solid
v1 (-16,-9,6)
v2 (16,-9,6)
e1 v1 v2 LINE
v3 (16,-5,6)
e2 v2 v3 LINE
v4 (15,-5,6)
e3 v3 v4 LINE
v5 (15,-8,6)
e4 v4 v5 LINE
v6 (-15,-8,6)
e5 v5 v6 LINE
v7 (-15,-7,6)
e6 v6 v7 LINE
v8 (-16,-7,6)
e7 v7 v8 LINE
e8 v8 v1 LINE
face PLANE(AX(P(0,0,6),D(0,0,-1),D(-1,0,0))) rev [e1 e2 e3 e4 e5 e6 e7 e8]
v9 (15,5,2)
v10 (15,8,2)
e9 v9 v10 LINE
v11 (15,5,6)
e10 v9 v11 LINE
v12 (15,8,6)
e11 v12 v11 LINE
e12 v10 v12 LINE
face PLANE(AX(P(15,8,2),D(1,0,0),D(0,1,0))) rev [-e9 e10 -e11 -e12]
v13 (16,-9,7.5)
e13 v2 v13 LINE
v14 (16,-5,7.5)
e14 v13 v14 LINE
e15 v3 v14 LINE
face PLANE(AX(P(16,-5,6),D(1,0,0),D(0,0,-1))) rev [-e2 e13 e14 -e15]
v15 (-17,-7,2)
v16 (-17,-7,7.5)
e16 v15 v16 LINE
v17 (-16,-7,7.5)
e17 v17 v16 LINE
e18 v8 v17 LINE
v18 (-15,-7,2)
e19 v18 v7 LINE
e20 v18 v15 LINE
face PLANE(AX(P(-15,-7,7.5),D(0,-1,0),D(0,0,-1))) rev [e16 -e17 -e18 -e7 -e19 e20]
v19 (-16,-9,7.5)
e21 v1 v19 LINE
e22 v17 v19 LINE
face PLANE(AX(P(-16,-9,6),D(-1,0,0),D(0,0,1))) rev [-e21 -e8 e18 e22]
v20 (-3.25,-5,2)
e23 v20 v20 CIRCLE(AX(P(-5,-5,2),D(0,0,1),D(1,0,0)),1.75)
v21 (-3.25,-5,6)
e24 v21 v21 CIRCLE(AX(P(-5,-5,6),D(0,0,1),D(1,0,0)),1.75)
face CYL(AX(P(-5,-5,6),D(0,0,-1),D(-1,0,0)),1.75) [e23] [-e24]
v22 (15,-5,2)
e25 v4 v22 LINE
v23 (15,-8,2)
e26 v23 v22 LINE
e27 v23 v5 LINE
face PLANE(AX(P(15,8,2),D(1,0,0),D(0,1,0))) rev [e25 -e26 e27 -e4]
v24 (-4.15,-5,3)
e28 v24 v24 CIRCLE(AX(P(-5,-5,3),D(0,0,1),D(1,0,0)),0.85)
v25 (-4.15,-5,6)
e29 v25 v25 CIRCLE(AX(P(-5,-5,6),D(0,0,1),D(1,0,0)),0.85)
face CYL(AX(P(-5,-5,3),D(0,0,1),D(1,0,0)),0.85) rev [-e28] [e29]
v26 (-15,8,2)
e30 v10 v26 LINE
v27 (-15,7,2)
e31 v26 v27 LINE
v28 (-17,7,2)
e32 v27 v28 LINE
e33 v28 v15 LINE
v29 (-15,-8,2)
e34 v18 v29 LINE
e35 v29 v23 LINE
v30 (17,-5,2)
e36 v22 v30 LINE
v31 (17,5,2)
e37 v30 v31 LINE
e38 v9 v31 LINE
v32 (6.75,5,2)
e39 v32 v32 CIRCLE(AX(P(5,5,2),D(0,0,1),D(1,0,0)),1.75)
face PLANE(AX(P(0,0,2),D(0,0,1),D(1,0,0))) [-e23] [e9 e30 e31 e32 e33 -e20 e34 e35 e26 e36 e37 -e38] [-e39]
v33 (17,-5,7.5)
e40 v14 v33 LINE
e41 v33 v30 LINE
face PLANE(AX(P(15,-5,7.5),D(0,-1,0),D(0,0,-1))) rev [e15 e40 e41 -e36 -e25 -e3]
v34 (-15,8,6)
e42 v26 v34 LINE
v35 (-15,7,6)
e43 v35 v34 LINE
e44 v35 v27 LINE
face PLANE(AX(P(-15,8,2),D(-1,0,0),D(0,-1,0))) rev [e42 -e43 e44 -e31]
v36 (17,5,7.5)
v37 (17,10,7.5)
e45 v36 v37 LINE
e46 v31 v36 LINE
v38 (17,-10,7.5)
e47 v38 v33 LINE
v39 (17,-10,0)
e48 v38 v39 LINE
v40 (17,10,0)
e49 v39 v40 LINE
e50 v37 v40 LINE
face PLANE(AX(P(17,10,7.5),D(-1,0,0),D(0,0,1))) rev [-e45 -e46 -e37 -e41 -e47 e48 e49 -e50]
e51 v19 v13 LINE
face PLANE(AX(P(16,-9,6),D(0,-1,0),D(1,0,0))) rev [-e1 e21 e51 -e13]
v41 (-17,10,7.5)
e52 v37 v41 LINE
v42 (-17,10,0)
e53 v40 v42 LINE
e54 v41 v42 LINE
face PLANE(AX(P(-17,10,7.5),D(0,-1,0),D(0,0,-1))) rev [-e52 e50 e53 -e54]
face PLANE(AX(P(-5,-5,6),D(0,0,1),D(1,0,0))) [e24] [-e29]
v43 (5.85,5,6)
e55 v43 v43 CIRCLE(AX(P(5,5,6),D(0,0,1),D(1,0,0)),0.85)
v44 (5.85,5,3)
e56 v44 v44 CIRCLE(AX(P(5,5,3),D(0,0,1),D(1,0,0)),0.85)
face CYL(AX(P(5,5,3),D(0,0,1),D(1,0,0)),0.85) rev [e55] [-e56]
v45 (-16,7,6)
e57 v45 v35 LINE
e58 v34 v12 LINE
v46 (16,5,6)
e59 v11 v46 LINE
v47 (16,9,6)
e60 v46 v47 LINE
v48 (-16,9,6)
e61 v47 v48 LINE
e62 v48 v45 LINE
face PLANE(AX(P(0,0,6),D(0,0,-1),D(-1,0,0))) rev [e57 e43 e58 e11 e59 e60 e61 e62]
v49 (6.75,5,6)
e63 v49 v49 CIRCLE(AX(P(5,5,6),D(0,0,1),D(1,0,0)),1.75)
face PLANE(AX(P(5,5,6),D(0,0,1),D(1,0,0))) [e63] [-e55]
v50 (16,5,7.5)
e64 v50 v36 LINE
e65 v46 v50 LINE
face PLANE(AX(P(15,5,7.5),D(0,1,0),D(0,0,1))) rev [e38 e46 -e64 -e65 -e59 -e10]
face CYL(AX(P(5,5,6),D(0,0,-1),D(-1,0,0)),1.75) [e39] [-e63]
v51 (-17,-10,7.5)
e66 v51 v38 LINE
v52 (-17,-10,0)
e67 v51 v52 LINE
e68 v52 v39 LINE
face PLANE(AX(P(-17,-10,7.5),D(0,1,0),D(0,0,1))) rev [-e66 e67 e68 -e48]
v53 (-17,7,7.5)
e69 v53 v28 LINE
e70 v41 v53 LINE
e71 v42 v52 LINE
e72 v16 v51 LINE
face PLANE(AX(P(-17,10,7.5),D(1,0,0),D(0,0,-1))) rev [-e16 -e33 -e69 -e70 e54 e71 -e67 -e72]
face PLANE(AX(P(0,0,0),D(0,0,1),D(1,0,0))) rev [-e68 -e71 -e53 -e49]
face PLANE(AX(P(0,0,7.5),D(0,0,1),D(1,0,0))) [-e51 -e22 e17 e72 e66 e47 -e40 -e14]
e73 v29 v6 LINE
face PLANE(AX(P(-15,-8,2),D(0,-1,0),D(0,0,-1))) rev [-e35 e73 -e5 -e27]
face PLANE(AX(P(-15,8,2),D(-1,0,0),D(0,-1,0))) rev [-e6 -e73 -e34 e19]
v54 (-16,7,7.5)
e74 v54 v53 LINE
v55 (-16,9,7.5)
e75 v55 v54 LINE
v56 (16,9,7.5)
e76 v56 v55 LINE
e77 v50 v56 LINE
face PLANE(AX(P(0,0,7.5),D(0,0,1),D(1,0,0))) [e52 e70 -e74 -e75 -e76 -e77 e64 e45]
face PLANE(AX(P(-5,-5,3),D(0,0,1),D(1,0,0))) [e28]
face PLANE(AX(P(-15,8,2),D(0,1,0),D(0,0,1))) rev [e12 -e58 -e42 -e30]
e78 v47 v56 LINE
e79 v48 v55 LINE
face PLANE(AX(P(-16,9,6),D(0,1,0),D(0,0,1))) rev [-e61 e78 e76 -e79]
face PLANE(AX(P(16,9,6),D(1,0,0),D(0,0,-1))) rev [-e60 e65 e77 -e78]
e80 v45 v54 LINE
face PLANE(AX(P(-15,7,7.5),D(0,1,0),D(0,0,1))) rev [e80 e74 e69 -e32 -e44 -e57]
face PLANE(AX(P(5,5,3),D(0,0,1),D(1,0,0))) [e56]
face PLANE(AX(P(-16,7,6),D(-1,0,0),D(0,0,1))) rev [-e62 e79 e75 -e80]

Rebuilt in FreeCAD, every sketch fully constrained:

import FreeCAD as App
import Part
import Sketcher
from FreeCAD import Vector


def add_polygon(sketch, points):
    """Adds a closed chain of lines whose ends are joined by coincident constraints."""
    first, n = sketch.GeometryCount, len(points)
    for a, b in zip(points, points[1:] + points[:1]):
        sketch.addGeometry(Part.LineSegment(App.Vector(*a, 0), App.Vector(*b, 0)), False)
    for i in range(n):
        sketch.addConstraint(Sketcher.Constraint("Coincident", first + i, 2, first + (i + 1) % n, 1))

doc = App.newDocument("Part")
params = doc.addObject("Spreadsheet::Sheet", "Params")
for row, (alias, value) in enumerate([
    ("sketch1_width", "34 mm"),
    ("sketch1_height", "20 mm"),
    ("pad1_length", "7.5 mm"),
    ("sketch2_width", "30 mm"),
    ("sketch2_height", "16 mm"),
    ("pocket1_length", "5.5 mm"),
    ("sketch3_width", "10 mm"),
    ("sketch3_height", "5.5 mm"),
    ("pocket2_length", "2 mm"),
    ("sketch4_width", "14 mm"),
    ("sketch4_height", "5.5 mm"),
    ("pocket3_length", "2 mm"),
    ("sketch5_width", "1 mm"),
    ("sketch5_width2", "30 mm"),
    ("sketch5_height", "2 mm"),
    ("sketch5_height2", "3 mm"),
    ("pocket4_length", "1.5 mm"),
    ("sketch6_diameter", "3.5 mm"),
    ("pad2_length", "4 mm"),
    ("sketch7_diameter", "1.7 mm"),
    ("pocket5_length", "3 mm"),
], start=1):
    params.set(f"A{row}", alias)
    params.set(f"B{row}", "=" + value)
    params.setAlias(f"B{row}", alias)

body = doc.addObject("PartDesign::Body", "Body")

# Sketch on XY plane
sketch1 = body.newObject("Sketcher::SketchObject", "Sketch")
sketch1.AttachmentSupport = (doc.getObject("XY_Plane"), [""])
sketch1.MapMode = "FlatFace"
add_polygon(sketch1, [(-17, 10), (-17, -10), (17, -10), (17, 10)])  # lines 0-3
sketch1.addConstraint(Sketcher.Constraint("Vertical", 0))
sketch1.addConstraint(Sketcher.Constraint("Horizontal", 1))
sketch1.addConstraint(Sketcher.Constraint("Vertical", 2))
sketch1.addConstraint(Sketcher.Constraint("Horizontal", 3))
sketch1.addConstraint(Sketcher.Constraint("Symmetric", 0, 2, 2, 2, -1, 1))
sketch1.addConstraint(Sketcher.Constraint("DistanceX", 1, 1, 1, 2, 34.0))
sketch1.addConstraint(Sketcher.Constraint("DistanceY", 0, 2, 0, 1, 20.0))
sketch1.setExpression("Constraints[9]", "Params.sketch1_width")
sketch1.setExpression("Constraints[10]", "Params.sketch1_height")
pad1 = body.newObject("PartDesign::Pad", "Pad")
pad1.Profile = sketch1
pad1.setExpression("Length", "Params.pad1_length")

# Sketch on XY plane
sketch2 = body.newObject("Sketcher::SketchObject", "Sketch001")
sketch2.AttachmentSupport = (doc.getObject("XY_Plane"), [""])
sketch2.MapMode = "FlatFace"
sketch2.AttachmentOffset = App.Placement(Vector(0, 0, 7.5), App.Rotation())
add_polygon(sketch2, [(-15, 8), (-15, -8), (15, -8), (15, 8)])  # lines 0-3
sketch2.addConstraint(Sketcher.Constraint("Vertical", 0))
sketch2.addConstraint(Sketcher.Constraint("Horizontal", 1))
sketch2.addConstraint(Sketcher.Constraint("Vertical", 2))
sketch2.addConstraint(Sketcher.Constraint("Horizontal", 3))
sketch2.addConstraint(Sketcher.Constraint("Symmetric", 0, 2, 2, 2, -1, 1))
sketch2.addConstraint(Sketcher.Constraint("DistanceX", 1, 1, 1, 2, 30.0))
sketch2.addConstraint(Sketcher.Constraint("DistanceY", 0, 2, 0, 1, 16.0))
sketch2.setExpression("Constraints[9]", "Params.sketch2_width")
sketch2.setExpression("Constraints[10]", "Params.sketch2_height")
pocket1 = body.newObject("PartDesign::Pocket", "Pocket")
pocket1.Profile = sketch2
pocket1.setExpression("Length", "Params.pocket1_length")

# Sketch on YZ plane
sketch3 = body.newObject("Sketcher::SketchObject", "Sketch002")
sketch3.AttachmentSupport = (doc.getObject("YZ_Plane"), [""])
sketch3.MapMode = "FlatFace"
sketch3.AttachmentOffset = App.Placement(Vector(0, 0, 17), App.Rotation())
add_polygon(sketch3, [(5, 8), (-5, 8), (-5, 2), (5, 2)])  # lines 0-3
sketch3.addConstraint(Sketcher.Constraint("Horizontal", 0))
sketch3.addConstraint(Sketcher.Constraint("Vertical", 1))
sketch3.addConstraint(Sketcher.Constraint("Horizontal", 2))
sketch3.addConstraint(Sketcher.Constraint("Vertical", 3))
sketch3.addConstraint(Sketcher.Constraint("DistanceX", 0, 2, 0, 1, 10.0))
sketch3.addConstraint(Sketcher.Constraint("DistanceY", 1, 2, 1, 1, 5.5))
sketch3.addConstraint(Sketcher.Constraint("DistanceX", 0, 2, -1, 1, 5.0))
sketch3.addConstraint(Sketcher.Constraint("DistanceY", -1, 1, 1, 2, 2.0))
sketch3.setExpression("Constraints[8]", "Params.sketch3_width")
sketch3.setExpression("Constraints[9]", "Params.sketch3_height")
pocket2 = body.newObject("PartDesign::Pocket", "Pocket001")
pocket2.Profile = sketch3
pocket2.setExpression("Length", "Params.pocket2_length")

# Sketch on YZ plane
sketch4 = body.newObject("Sketcher::SketchObject", "Sketch003")
sketch4.AttachmentSupport = (doc.getObject("YZ_Plane"), [""])
sketch4.MapMode = "FlatFace"
sketch4.AttachmentOffset = App.Placement(Vector(0, 0, -17), App.Rotation())
add_polygon(sketch4, [(7, 2), (-7, 2), (-7, 8), (7, 8)])  # lines 0-3
sketch4.addConstraint(Sketcher.Constraint("Horizontal", 0))
sketch4.addConstraint(Sketcher.Constraint("Vertical", 1))
sketch4.addConstraint(Sketcher.Constraint("Horizontal", 2))
sketch4.addConstraint(Sketcher.Constraint("Vertical", 3))
sketch4.addConstraint(Sketcher.Constraint("DistanceX", 0, 2, 0, 1, 14.0))
sketch4.addConstraint(Sketcher.Constraint("DistanceY", 1, 1, 1, 2, 5.5))
sketch4.addConstraint(Sketcher.Constraint("DistanceX", 0, 2, -1, 1, 7.0))
sketch4.addConstraint(Sketcher.Constraint("DistanceY", -1, 1, 0, 2, 2.0))
sketch4.setExpression("Constraints[8]", "Params.sketch4_width")
sketch4.setExpression("Constraints[9]", "Params.sketch4_height")
pocket3 = body.newObject("PartDesign::Pocket", "Pocket002")
pocket3.Profile = sketch4
pocket3.setExpression("Length", "Params.pocket3_length")
pocket3.Reversed = True

# Sketch on XY plane
sketch5 = body.newObject("Sketcher::SketchObject", "Sketch004")
sketch5.AttachmentSupport = (doc.getObject("XY_Plane"), [""])
sketch5.MapMode = "FlatFace"
sketch5.AttachmentOffset = App.Placement(Vector(0, 0, 7.5), App.Rotation())
add_polygon(sketch5, [(-16, 9), (-16, 7), (-15, 7), (-15, 8), (15, 8), (15, 5), (16, 5), (16, 9)])  # lines 0-7
add_polygon(sketch5, [(-15, -8), (-15, -7), (-16, -7), (-16, -9), (16, -9), (16, -5), (15, -5), (15, -8)])  # lines 8-15
sketch5.addConstraint(Sketcher.Constraint("Vertical", 0))
sketch5.addConstraint(Sketcher.Constraint("Horizontal", 1))
sketch5.addConstraint(Sketcher.Constraint("Vertical", 2))
sketch5.addConstraint(Sketcher.Constraint("Horizontal", 3))
sketch5.addConstraint(Sketcher.Constraint("Vertical", 4))
sketch5.addConstraint(Sketcher.Constraint("Horizontal", 5))
sketch5.addConstraint(Sketcher.Constraint("Vertical", 6))
sketch5.addConstraint(Sketcher.Constraint("Horizontal", 7))
sketch5.addConstraint(Sketcher.Constraint("Vertical", 8))
sketch5.addConstraint(Sketcher.Constraint("Horizontal", 9))
sketch5.addConstraint(Sketcher.Constraint("Vertical", 10))
sketch5.addConstraint(Sketcher.Constraint("Horizontal", 11))
sketch5.addConstraint(Sketcher.Constraint("Vertical", 12))
sketch5.addConstraint(Sketcher.Constraint("Horizontal", 13))
sketch5.addConstraint(Sketcher.Constraint("Vertical", 14))
sketch5.addConstraint(Sketcher.Constraint("Horizontal", 15))
sketch5.addConstraint(Sketcher.Constraint("Symmetric", 6, 2, 10, 2, -1, 1))
sketch5.addConstraint(Sketcher.Constraint("Symmetric", 2, 2, 14, 2, -1, 1))
sketch5.addConstraint(Sketcher.Constraint("Symmetric", 1, 2, 8, 2, -1))
sketch5.addConstraint(Sketcher.Constraint("Symmetric", 5, 2, 12, 2, -1))
sketch5.addConstraint(Sketcher.Constraint("Vertical", 7, 2, 9, 2))
sketch5.addConstraint(Sketcher.Constraint("Vertical", 4, 2, 13, 2))
sketch5.addConstraint(Sketcher.Constraint("Equal", 13, 2))
sketch5.addConstraint(Sketcher.Constraint("DistanceX", 1, 1, 1, 2, 1.0))
sketch5.addConstraint(Sketcher.Constraint("DistanceX", 3, 1, 3, 2, 30.0))
sketch5.addConstraint(Sketcher.Constraint("DistanceY", 0, 2, 0, 1, 2.0))
sketch5.addConstraint(Sketcher.Constraint("DistanceY", 4, 2, 4, 1, 3.0))
sketch5.addConstraint(Sketcher.Constraint("DistanceY", -1, 1, 0, 2, 7.0))
sketch5.setExpression("Constraints[39]", "Params.sketch5_width")
sketch5.setExpression("Constraints[40]", "Params.sketch5_width2")
sketch5.setExpression("Constraints[41]", "Params.sketch5_height")
sketch5.setExpression("Constraints[42]", "Params.sketch5_height2")
pocket4 = body.newObject("PartDesign::Pocket", "Pocket003")
pocket4.Profile = sketch5
pocket4.setExpression("Length", "Params.pocket4_length")

# Sketch on XY plane
sketch6 = body.newObject("Sketcher::SketchObject", "Sketch005")
sketch6.AttachmentSupport = (doc.getObject("XY_Plane"), [""])
sketch6.MapMode = "FlatFace"
sketch6.AttachmentOffset = App.Placement(Vector(0, 0, 2), App.Rotation())
sketch6.addGeometry(Part.Circle(Vector(5, 5, 0), Vector(0, 0, 1), 1.8), False)
sketch6.addGeometry(Part.Circle(Vector(-5, -5, 0), Vector(0, 0, 1), 1.8), False)
sketch6.addConstraint(Sketcher.Constraint("Equal", 0, 1))
sketch6.addConstraint(Sketcher.Constraint("Symmetric", 0, 3, 1, 3, -1, 1))
sketch6.addConstraint(Sketcher.Constraint("Diameter", 0, 3.5))
sketch6.addConstraint(Sketcher.Constraint("DistanceX", -1, 1, 0, 3, 5.0))
sketch6.addConstraint(Sketcher.Constraint("DistanceY", -1, 1, 0, 3, 5.0))
sketch6.setExpression("Constraints[2]", "Params.sketch6_diameter")
pad2 = body.newObject("PartDesign::Pad", "Pad001")
pad2.Profile = sketch6
pad2.setExpression("Length", "Params.pad2_length")

# Sketch on XY plane
sketch7 = body.newObject("Sketcher::SketchObject", "Sketch006")
sketch7.AttachmentSupport = (doc.getObject("XY_Plane"), [""])
sketch7.MapMode = "FlatFace"
sketch7.AttachmentOffset = App.Placement(Vector(0, 0, 6), App.Rotation())
sketch7.addGeometry(Part.Circle(Vector(-5, -5, 0), Vector(0, 0, 1), 0.8), False)
sketch7.addGeometry(Part.Circle(Vector(5, 5, 0), Vector(0, 0, 1), 0.8), False)
sketch7.addConstraint(Sketcher.Constraint("Equal", 0, 1))
sketch7.addConstraint(Sketcher.Constraint("Symmetric", 0, 3, 1, 3, -1, 1))
sketch7.addConstraint(Sketcher.Constraint("Diameter", 0, 1.7))
sketch7.addConstraint(Sketcher.Constraint("DistanceX", 0, 3, -1, 1, 5.0))
sketch7.addConstraint(Sketcher.Constraint("DistanceY", 0, 3, -1, 1, 5.0))
sketch7.setExpression("Constraints[2]", "Params.sketch7_diameter")
pocket5 = body.newObject("PartDesign::Pocket", "Pocket004")
pocket5.Profile = sketch7
pocket5.setExpression("Length", "Params.pocket5_length")

doc.recompute()
